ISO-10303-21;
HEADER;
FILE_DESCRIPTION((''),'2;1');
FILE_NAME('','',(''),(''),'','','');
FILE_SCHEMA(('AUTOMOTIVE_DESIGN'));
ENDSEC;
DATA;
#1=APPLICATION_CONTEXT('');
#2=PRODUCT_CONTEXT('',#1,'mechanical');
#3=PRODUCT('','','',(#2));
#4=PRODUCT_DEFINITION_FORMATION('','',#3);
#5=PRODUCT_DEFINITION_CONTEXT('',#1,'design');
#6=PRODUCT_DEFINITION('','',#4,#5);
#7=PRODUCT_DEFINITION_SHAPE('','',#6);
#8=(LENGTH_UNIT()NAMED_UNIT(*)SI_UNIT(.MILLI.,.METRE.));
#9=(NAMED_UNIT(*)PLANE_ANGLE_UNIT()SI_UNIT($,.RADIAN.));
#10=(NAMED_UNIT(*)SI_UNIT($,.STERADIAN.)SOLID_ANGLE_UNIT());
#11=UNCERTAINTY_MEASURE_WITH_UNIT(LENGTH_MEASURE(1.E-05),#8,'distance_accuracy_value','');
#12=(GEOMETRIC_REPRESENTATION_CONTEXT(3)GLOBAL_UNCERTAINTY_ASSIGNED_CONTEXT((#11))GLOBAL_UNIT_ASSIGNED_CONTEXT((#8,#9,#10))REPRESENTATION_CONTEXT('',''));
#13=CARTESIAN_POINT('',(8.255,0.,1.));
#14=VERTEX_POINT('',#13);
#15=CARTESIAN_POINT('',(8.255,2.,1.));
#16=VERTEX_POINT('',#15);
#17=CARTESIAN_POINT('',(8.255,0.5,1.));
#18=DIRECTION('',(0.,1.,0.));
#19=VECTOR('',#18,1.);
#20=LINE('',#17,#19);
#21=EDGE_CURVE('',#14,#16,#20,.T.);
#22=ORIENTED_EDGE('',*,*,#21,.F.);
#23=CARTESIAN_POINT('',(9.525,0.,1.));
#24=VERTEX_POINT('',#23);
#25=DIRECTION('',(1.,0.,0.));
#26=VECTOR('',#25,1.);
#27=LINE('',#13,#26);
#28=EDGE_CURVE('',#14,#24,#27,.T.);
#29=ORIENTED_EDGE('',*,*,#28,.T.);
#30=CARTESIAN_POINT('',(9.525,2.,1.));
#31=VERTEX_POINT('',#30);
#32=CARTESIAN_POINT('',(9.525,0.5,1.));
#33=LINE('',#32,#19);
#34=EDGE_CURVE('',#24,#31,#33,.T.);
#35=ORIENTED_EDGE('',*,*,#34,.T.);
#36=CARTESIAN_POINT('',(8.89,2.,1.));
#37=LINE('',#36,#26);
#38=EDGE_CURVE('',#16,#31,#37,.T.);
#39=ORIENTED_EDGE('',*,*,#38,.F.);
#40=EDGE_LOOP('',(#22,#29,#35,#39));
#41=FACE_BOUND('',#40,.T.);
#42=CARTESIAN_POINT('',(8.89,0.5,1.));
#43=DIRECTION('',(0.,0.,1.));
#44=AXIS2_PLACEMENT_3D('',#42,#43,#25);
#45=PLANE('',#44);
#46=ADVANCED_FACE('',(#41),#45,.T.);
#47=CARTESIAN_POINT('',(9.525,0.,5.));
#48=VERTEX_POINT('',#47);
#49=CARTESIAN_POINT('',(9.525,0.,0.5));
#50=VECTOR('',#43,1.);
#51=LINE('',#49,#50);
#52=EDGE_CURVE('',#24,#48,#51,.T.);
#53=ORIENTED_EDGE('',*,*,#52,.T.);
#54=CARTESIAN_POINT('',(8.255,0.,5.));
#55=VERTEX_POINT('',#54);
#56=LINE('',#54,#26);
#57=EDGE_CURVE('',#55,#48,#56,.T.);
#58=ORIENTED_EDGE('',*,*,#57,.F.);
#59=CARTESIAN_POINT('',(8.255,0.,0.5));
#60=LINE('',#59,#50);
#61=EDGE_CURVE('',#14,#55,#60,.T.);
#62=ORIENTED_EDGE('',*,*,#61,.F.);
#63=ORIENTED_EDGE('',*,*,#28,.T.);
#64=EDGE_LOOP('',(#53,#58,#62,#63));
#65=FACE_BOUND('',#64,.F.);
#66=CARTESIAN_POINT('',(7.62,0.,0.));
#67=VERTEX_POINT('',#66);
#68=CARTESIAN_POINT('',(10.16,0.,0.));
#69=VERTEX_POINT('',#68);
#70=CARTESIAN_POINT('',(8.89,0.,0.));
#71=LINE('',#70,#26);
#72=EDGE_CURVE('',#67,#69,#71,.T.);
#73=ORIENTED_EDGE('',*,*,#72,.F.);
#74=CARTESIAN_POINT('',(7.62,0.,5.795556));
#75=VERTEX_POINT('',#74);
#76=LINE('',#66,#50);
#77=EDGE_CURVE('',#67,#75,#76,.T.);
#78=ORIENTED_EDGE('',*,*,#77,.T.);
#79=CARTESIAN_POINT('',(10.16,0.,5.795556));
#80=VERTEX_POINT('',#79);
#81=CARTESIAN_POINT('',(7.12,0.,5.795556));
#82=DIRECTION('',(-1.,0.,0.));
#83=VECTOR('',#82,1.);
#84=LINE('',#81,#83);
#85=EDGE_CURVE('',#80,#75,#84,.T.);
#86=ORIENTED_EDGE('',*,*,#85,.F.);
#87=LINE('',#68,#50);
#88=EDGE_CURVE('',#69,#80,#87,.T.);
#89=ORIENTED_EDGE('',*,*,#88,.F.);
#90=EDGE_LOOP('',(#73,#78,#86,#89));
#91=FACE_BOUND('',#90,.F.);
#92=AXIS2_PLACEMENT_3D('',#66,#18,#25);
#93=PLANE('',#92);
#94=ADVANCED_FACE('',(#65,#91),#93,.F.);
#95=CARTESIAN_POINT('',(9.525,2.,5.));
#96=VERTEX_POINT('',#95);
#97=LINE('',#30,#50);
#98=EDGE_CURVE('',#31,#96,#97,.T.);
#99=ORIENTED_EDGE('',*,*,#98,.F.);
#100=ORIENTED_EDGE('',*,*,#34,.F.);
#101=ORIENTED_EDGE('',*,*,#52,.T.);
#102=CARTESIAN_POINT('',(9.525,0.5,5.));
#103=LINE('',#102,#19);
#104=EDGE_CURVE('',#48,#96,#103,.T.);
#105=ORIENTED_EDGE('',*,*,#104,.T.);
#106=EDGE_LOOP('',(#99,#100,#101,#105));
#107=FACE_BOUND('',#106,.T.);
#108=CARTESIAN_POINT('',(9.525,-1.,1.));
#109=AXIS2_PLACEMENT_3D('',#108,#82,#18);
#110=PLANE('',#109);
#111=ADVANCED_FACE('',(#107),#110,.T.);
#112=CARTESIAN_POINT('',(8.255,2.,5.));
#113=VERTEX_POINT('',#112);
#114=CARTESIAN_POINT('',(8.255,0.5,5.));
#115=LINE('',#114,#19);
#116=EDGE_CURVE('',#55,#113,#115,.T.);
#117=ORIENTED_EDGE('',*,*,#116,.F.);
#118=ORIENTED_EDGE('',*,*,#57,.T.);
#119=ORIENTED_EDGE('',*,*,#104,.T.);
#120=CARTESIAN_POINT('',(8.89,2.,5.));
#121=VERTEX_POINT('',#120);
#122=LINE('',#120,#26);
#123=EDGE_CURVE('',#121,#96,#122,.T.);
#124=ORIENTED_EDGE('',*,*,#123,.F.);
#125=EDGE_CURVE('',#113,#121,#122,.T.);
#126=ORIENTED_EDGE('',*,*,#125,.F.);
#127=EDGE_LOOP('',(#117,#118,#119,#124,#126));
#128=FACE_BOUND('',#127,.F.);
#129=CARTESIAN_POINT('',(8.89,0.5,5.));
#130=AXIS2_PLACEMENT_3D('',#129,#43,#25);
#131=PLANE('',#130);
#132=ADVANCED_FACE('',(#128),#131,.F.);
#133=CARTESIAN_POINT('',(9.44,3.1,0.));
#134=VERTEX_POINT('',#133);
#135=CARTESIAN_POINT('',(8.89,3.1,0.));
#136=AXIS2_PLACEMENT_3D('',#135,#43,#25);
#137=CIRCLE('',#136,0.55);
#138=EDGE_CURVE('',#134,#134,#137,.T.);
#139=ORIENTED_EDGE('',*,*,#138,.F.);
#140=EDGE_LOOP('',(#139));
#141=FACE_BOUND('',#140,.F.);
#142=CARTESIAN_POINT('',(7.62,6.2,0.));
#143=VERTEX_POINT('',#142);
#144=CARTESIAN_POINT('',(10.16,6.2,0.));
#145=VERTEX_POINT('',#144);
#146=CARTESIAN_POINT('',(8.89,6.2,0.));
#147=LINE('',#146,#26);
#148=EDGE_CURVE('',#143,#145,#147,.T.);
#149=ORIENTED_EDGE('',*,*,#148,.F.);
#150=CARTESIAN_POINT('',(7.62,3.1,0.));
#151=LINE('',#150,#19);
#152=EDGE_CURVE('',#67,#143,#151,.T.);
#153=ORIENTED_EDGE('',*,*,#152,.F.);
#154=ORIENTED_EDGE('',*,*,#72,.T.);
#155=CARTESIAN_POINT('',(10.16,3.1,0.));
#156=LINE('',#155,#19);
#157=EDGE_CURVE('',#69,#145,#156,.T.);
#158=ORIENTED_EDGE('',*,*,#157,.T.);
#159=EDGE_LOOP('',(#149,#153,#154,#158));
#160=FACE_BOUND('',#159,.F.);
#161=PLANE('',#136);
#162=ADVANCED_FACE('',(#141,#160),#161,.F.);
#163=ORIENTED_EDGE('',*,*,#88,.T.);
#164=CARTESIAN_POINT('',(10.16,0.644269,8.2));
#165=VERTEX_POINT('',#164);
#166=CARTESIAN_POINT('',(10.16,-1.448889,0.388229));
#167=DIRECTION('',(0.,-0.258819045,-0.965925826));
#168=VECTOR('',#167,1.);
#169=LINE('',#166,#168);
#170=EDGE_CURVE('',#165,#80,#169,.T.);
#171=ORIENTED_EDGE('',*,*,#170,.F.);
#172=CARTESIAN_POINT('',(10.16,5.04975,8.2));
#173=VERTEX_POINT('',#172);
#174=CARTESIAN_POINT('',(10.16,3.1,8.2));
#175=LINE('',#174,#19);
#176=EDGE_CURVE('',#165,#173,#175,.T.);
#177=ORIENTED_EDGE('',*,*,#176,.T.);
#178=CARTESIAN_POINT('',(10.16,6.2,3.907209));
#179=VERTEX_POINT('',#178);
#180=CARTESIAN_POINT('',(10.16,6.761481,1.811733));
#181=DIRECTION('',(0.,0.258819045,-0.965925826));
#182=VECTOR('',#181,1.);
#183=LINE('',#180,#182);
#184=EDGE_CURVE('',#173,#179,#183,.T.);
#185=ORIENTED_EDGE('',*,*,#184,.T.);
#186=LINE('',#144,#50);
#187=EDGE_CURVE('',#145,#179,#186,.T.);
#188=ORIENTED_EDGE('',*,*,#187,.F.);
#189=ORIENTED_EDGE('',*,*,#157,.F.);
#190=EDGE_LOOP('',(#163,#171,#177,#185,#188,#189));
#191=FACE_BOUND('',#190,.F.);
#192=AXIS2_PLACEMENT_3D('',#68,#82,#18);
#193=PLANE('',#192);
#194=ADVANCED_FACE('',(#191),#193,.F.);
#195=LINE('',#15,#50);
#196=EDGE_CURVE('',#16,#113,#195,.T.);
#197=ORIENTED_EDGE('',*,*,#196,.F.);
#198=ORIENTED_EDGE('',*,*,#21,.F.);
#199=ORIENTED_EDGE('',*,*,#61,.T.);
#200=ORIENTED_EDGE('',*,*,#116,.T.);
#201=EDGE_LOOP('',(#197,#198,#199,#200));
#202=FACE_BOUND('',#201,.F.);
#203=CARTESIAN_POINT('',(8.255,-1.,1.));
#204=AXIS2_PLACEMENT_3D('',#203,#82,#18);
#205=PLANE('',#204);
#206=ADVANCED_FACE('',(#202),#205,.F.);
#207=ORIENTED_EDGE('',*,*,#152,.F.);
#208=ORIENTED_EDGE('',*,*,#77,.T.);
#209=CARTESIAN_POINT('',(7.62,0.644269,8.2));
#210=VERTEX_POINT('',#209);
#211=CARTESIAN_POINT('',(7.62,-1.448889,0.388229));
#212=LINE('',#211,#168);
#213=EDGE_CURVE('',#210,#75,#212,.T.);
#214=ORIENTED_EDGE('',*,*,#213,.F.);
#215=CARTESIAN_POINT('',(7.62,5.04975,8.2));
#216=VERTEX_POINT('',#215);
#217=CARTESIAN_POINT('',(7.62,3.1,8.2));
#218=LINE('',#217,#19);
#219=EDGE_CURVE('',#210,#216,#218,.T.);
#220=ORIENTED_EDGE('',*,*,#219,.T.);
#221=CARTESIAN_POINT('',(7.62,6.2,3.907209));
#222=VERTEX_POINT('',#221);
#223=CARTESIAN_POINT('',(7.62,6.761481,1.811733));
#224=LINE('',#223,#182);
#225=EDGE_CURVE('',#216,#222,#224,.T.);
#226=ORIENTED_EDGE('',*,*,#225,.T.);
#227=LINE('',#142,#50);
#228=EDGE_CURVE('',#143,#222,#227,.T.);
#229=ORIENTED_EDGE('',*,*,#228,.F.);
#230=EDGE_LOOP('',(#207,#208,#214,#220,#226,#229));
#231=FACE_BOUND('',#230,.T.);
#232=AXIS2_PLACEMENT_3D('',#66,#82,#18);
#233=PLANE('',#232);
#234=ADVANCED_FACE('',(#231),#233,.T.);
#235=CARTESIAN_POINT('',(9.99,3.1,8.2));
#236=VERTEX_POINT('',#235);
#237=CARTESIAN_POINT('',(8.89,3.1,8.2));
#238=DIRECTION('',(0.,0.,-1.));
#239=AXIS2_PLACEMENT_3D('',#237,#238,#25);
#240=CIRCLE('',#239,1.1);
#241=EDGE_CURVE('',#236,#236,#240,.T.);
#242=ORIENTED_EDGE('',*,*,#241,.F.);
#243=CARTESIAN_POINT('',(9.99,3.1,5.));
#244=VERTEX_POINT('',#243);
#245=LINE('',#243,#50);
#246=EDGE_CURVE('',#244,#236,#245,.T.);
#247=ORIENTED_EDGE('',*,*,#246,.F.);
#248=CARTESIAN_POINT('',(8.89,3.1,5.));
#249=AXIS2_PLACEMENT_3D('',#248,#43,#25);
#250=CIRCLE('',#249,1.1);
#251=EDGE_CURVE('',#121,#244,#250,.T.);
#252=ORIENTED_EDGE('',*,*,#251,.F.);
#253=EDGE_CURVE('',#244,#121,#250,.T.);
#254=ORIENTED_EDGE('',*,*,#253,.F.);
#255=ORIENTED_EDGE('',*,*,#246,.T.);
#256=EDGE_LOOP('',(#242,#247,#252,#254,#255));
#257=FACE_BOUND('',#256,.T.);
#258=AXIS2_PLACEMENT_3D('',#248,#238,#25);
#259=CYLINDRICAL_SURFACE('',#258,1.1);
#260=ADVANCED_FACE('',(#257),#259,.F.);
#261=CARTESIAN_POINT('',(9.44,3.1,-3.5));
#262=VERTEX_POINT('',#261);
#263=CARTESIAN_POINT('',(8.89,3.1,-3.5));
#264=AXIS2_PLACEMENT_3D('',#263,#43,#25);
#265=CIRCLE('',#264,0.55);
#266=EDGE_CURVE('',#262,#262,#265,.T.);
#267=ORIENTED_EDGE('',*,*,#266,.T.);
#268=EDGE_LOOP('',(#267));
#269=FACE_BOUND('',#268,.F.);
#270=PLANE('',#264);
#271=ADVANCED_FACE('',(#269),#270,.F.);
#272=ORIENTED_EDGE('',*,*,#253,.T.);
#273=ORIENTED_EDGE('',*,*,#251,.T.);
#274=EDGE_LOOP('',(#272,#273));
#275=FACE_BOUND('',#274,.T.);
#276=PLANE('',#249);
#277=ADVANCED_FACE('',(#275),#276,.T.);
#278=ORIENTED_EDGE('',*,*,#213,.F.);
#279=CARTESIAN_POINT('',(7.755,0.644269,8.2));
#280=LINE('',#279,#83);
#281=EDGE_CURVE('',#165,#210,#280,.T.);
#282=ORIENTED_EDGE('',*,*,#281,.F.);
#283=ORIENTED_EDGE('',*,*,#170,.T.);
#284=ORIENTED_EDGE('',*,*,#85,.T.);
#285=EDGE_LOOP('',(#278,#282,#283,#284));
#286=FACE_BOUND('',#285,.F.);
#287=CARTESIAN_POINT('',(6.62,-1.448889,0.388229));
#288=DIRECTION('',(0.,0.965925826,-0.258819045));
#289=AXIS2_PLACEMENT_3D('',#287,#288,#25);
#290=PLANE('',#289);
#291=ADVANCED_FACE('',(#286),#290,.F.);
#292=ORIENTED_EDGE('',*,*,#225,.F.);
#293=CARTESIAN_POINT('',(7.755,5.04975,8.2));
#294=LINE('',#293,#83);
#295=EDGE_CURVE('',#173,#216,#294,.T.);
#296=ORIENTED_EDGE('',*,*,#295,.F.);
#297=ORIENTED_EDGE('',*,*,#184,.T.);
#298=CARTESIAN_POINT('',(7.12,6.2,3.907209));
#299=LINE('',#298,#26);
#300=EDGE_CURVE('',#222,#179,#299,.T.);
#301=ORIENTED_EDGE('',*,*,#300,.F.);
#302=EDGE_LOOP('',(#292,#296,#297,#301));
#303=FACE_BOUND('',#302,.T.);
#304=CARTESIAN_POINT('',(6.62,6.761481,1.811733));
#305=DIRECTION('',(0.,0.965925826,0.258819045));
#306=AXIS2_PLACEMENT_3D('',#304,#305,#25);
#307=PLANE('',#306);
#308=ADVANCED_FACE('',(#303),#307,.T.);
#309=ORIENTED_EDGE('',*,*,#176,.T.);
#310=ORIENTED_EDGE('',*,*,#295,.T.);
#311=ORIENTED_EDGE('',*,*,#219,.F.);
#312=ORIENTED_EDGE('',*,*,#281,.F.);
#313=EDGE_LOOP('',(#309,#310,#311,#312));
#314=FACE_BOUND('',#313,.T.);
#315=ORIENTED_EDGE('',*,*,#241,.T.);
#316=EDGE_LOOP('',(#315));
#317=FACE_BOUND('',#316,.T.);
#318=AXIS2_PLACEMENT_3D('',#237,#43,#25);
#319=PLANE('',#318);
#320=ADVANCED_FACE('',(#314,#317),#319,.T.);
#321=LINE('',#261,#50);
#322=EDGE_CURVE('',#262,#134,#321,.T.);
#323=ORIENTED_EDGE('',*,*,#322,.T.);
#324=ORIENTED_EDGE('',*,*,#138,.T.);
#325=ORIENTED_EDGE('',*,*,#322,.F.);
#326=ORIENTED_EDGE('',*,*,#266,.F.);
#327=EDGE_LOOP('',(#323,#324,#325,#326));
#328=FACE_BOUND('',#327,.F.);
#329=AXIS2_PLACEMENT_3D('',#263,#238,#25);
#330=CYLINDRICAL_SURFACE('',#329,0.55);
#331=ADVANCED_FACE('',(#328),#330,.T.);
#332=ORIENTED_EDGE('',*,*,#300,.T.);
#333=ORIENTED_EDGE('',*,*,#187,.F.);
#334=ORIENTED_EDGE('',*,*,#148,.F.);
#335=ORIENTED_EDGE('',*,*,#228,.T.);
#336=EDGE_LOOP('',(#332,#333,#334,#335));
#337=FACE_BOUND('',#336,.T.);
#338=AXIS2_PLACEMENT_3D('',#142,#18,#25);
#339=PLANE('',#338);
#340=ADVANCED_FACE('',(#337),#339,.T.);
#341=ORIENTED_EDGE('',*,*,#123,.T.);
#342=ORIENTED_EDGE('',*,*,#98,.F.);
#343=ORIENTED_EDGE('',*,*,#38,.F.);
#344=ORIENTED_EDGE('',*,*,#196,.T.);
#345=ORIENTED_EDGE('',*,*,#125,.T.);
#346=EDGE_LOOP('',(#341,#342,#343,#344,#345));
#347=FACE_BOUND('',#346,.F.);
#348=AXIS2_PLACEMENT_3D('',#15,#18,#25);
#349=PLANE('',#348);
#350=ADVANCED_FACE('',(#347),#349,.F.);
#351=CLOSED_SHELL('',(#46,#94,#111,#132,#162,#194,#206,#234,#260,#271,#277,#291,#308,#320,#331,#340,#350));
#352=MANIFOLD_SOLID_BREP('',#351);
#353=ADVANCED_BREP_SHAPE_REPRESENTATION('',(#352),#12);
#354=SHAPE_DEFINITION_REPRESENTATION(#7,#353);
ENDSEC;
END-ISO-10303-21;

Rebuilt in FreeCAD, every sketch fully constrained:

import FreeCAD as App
import Part
import Sketcher
Q = App.Units.Quantity

doc = App.newDocument("Part")
body = doc.addObject("PartDesign::Body", "Body")

sketch1 = body.newObject("Sketcher::SketchObject", "Sketch")
sketch1.AttachmentSupport = (doc.getObject("XY_Plane"), [""])
sketch1.MapMode = "FlatFace"
sketch1.AttachmentOffset = App.Placement(App.Vector(0, 0, -3.5), App.Rotation())
sketch1.addGeometry(Part.Circle(App.Vector(1.3, 3.1, 0), App.Vector(0, 0, 1), 0.6), False)
sketch1.addConstraint([
    Sketcher.Constraint("Diameter", 0, Q("1.1 mm")),
    Sketcher.Constraint("DistanceY", -1, 1, 0, 3, Q("3.1 mm")),
    Sketcher.Constraint("DistanceX", -1, 1, 0, 3, Q("1.27 mm")),
])
pad1 = body.newObject("PartDesign::Pad", "Pad")
pad1.Profile = sketch1
pad1.Length = 3.5
body2 = doc.addObject("PartDesign::Body", "Body001")

sketch2 = body2.newObject("Sketcher::SketchObject", "Sketch001")
sketch2.AttachmentSupport = (doc.getObject("XY_Plane001"), [""])
sketch2.MapMode = "FlatFace"
sketch2.AttachmentOffset = App.Placement(App.Vector(0, 0, 5), App.Rotation())
sketch2.addGeometry(Part.Circle(App.Vector(1.3, 3.1, 0), App.Vector(0, 0, 1), 1.1), False)
sketch2.addConstraint([
    Sketcher.Constraint("Diameter", 0, Q("2.2 mm")),
    Sketcher.Constraint("DistanceY", -1, 1, 0, 3, Q("3.1 mm")),
    Sketcher.Constraint("DistanceX", -1, 1, 0, 3, Q("1.27 mm")),
])
pad2 = body2.newObject("PartDesign::Pad", "Pad001")
pad2.Profile = sketch2
pad2.Length = 3.5
body3 = doc.addObject("PartDesign::Body", "Body002")

sketch3 = body3.newObject("Sketcher::SketchObject", "Sketch002")
sketch3.AttachmentSupport = (doc.getObject("XY_Plane002"), [""])
sketch3.MapMode = "FlatFace"
sketch3.addGeometry([
    Part.LineSegment(App.Vector(0, 6, 0), App.Vector(0, 0, 0)),
    Part.LineSegment(App.Vector(0, 0, 0), App.Vector(4, 0, 0)),
    Part.LineSegment(App.Vector(4, 0, 0), App.Vector(4, 6, 0)),
    Part.LineSegment(App.Vector(4, 6, 0), App.Vector(0, 6, 0)),
], False)
sketch3.addConstraint([
    Sketcher.Constraint("Coincident", 0, 2, 1, 1),
    Sketcher.Constraint("Coincident", 1, 2, 2, 1),
    Sketcher.Constraint("Coincident", 2, 2, 3, 1),
    Sketcher.Constraint("Coincident", 3, 2, 0, 1),
    Sketcher.Constraint("Vertical", 0),
    Sketcher.Constraint("Horizontal", 1),
    Sketcher.Constraint("Vertical", 2),
    Sketcher.Constraint("Horizontal", 3),
    Sketcher.Constraint("Coincident", 0, 2, -1, 1),
    Sketcher.Constraint("DistanceX", 1, 1, 1, 2, Q("4 mm")),
    Sketcher.Constraint("DistanceY", 0, 2, 0, 1, Q("6 mm")),
])
pad3 = body3.newObject("PartDesign::Pad", "Pad002")
pad3.Profile = sketch3
pad3.Length = 9
body4 = doc.addObject("PartDesign::Body", "Body003")
doc.recompute()

body3.Placement = App.Placement(App.Vector(-1, -7.244444, 1.941143), App.Rotation(App.Vector(-1, 0, 0), 15))
boolean = body4.newObject("PartDesign::Boolean", "Boolean")
boolean.Type = "Fuse"
boolean.addObjects([body3])
body5 = doc.addObject("PartDesign::Body", "Body004")

sketch4 = body5.newObject("Sketcher::SketchObject", "Sketch003")
sketch4.AttachmentSupport = (doc.getObject("XY_Plane004"), [""])
sketch4.MapMode = "FlatFace"
sketch4.addGeometry([
    Part.LineSegment(App.Vector(0, 6, 0), App.Vector(0, 0, 0)),
    Part.LineSegment(App.Vector(0, 0, 0), App.Vector(4, 0, 0)),
    Part.LineSegment(App.Vector(4, 0, 0), App.Vector(4, 6, 0)),
    Part.LineSegment(App.Vector(4, 6, 0), App.Vector(0, 6, 0)),
], False)
sketch4.addConstraint([
    Sketcher.Constraint("Coincident", 0, 2, 1, 1),
    Sketcher.Constraint("Coincident", 1, 2, 2, 1),
    Sketcher.Constraint("Coincident", 2, 2, 3, 1),
    Sketcher.Constraint("Coincident", 3, 2, 0, 1),
    Sketcher.Constraint("Vertical", 0),
    Sketcher.Constraint("Horizontal", 1),
    Sketcher.Constraint("Vertical", 2),
    Sketcher.Constraint("Horizontal", 3),
    Sketcher.Constraint("Coincident", 0, 2, -1, 1),
    Sketcher.Constraint("DistanceX", 1, 1, 1, 2, Q("4 mm")),
    Sketcher.Constraint("DistanceY", 0, 2, 0, 1, Q("6 mm")),
])
pad4 = body5.newObject("PartDesign::Pad", "Pad003")
pad4.Profile = sketch4
pad4.Length = 8
body6 = doc.addObject("PartDesign::Body", "Body005")
doc.recompute()

body5.Placement = App.Placement(App.Vector(-1, 6.761481, 1.811733), App.Rotation(App.Vector(1, 0, 0), 15))
boolean2 = body6.newObject("PartDesign::Boolean", "Boolean001")
boolean2.Type = "Fuse"
boolean2.addObjects([body5])
body7 = doc.addObject("PartDesign::Body", "Body006")

sketch5 = body7.newObject("Sketcher::SketchObject", "Sketch004")
sketch5.AttachmentSupport = (doc.getObject("XY_Plane006"), [""])
sketch5.MapMode = "FlatFace"
sketch5.AttachmentOffset = App.Placement(App.Vector(0, 0, 1), App.Rotation())
sketch5.addGeometry([
    Part.LineSegment(App.Vector(0.6, 2, 0), App.Vector(0.6, -1, 0)),
    Part.LineSegment(App.Vector(0.6, -1, 0), App.Vector(1.9, -1, 0)),
    Part.LineSegment(App.Vector(1.9, -1, 0), App.Vector(1.9, 2, 0)),
    Part.LineSegment(App.Vector(1.9, 2, 0), App.Vector(0.6, 2, 0)),
], False)
sketch5.addConstraint([
    Sketcher.Constraint("Coincident", 0, 2, 1, 1),
    Sketcher.Constraint("Coincident", 1, 2, 2, 1),
    Sketcher.Constraint("Coincident", 2, 2, 3, 1),
    Sketcher.Constraint("Coincident", 3, 2, 0, 1),
    Sketcher.Constraint("Vertical", 0),
    Sketcher.Constraint("Horizontal", 1),
    Sketcher.Constraint("Vertical", 2),
    Sketcher.Constraint("Horizontal", 3),
    Sketcher.Constraint("DistanceY", 0, 2, 0, 1, Q("3 mm")),
    Sketcher.Constraint("DistanceY", 0, 2, -1, 1, Q("1 mm")),
    Sketcher.Constraint("DistanceX", 1, 1, 1, 2, Q("1.27 mm")),
    Sketcher.Constraint("DistanceX", -1, 1, 0, 2, Q("0.635 mm")),
])
pad5 = body7.newObject("PartDesign::Pad", "Pad004")
pad5.Profile = sketch5
pad5.Length = 4
body8 = doc.addObject("PartDesign::Body", "Body007")

sketch6 = body8.newObject("Sketcher::SketchObject", "Sketch005")
sketch6.AttachmentSupport = (doc.getObject("XY_Plane007"), [""])
sketch6.MapMode = "FlatFace"
sketch6.addGeometry([
    Part.LineSegment(App.Vector(0, 6.2, 0), App.Vector(0, 0, 0)),
    Part.LineSegment(App.Vector(0, 0, 0), App.Vector(2.5, 0, 0)),
    Part.LineSegment(App.Vector(2.5, 0, 0), App.Vector(2.5, 6.2, 0)),
    Part.LineSegment(App.Vector(2.5, 6.2, 0), App.Vector(0, 6.2, 0)),
], False)
sketch6.addConstraint([
    Sketcher.Constraint("Coincident", 0, 2, 1, 1),
    Sketcher.Constraint("Coincident", 1, 2, 2, 1),
    Sketcher.Constraint("Coincident", 2, 2, 3, 1),
    Sketcher.Constraint("Coincident", 3, 2, 0, 1),
    Sketcher.Constraint("Vertical", 0),
    Sketcher.Constraint("Horizontal", 1),
    Sketcher.Constraint("Vertical", 2),
    Sketcher.Constraint("Horizontal", 3),
    Sketcher.Constraint("Coincident", 0, 2, -1, 1),
    Sketcher.Constraint("DistanceY", 0, 2, 0, 1, Q("6.2 mm")),
    Sketcher.Constraint("DistanceX", 1, 1, 1, 2, Q("2.54 mm")),
])
pad6 = body8.newObject("PartDesign::Pad", "Pad005")
pad6.Profile = sketch6
pad6.Length = 8.2
doc.recompute()

boolean3 = body8.newObject("PartDesign::Boolean", "Boolean002")
boolean3.Type = "Cut"
boolean3.addObjects([body7])
doc.recompute()

boolean4 = body8.newObject("PartDesign::Boolean", "Boolean003")
boolean4.Type = "Cut"
boolean4.addObjects([body6])
doc.recompute()

boolean5 = body8.newObject("PartDesign::Boolean", "Boolean004")
boolean5.Type = "Cut"
boolean5.addObjects([body4])
doc.recompute()

boolean6 = body8.newObject("PartDesign::Boolean", "Boolean005")
boolean6.Type = "Cut"
boolean6.addObjects([body2])
doc.recompute()

boolean7 = body8.newObject("PartDesign::Boolean", "Boolean006")
boolean7.Type = "Fuse"
boolean7.addObjects([body])
body9 = doc.addObject("PartDesign::Body", "Body008")
doc.recompute()

body8.Placement = App.Placement(App.Vector(7.62, 0, 0), App.Rotation(App.Vector(0, 0, 1), 0))
boolean8 = body9.newObject("PartDesign::Boolean", "Boolean007")
boolean8.Type = "Fuse"
boolean8.addObjects([body8])

doc.recompute()
